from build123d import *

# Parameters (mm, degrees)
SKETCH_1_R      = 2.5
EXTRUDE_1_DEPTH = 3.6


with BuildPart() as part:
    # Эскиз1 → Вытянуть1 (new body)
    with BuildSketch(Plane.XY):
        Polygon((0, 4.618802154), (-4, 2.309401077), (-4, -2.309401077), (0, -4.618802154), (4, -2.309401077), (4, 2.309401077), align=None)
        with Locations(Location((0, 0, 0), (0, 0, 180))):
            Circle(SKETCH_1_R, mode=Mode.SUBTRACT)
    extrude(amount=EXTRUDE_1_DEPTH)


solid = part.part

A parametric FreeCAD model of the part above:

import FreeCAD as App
import Part
import Sketcher
Q = App.Units.Quantity


def add_polygon(sketch, points):
    """Adds a closed chain of lines whose ends are joined by coincident constraints."""
    first, n = sketch.GeometryCount, len(points)
    for a, b in zip(points, points[1:] + points[:1]):
        sketch.addGeometry(Part.LineSegment(App.Vector(*a, 0), App.Vector(*b, 0)), False)
    for i in range(n):
        sketch.addConstraint(Sketcher.Constraint("Coincident", first + i, 2, first + (i + 1) % n, 1))

doc = App.newDocument("Part")
body = doc.addObject("PartDesign::Body", "Body")

sketch1 = body.newObject("Sketcher::SketchObject", "Sketch")
sketch1.AttachmentSupport = (doc.getObject("XY_Plane"), [""])
sketch1.MapMode = "FlatFace"
add_polygon(sketch1, [(0, 4.6), (-4, 2.3), (-4, -2.3), (0, -4.6), (4, -2.3), (4, 2.3)])
sketch1.addGeometry(Part.Circle(App.Vector(0, 0, 0), App.Vector(0, 0, 1), 2.5), False)
sketch1.addConstraint([
    Sketcher.Constraint("Vertical", 1),
    Sketcher.Constraint("Vertical", 4),
    Sketcher.Constraint("Coincident", 6, 3, -1, 1),
    Sketcher.Constraint("Symmetric", 0, 2, 3, 2, -1, 1),
    Sketcher.Constraint("Symmetric", 2, 2, 5, 2, -1, 1),
    Sketcher.Constraint("PointOnObject", 2, 2, -2),
    Sketcher.Constraint("Parallel", 2, 5),
    Sketcher.Constraint("Horizontal", 1, 2, 3, 2),
    Sketcher.Constraint("Diameter", 6, Q("5 mm")),
    Sketcher.Constraint("Angle", 0, Q("-150 deg")),
    Sketcher.Constraint("DistanceX", 0, 2, -1, 1, Q("4 mm")),
    Sketcher.Constraint("DistanceY", -1, 1, 0, 2, Q("2.309401 mm")),
])
pad1 = body.newObject("PartDesign::Pad", "Pad")
pad1.Profile = sketch1
pad1.Length = 3.6

doc.recompute()
